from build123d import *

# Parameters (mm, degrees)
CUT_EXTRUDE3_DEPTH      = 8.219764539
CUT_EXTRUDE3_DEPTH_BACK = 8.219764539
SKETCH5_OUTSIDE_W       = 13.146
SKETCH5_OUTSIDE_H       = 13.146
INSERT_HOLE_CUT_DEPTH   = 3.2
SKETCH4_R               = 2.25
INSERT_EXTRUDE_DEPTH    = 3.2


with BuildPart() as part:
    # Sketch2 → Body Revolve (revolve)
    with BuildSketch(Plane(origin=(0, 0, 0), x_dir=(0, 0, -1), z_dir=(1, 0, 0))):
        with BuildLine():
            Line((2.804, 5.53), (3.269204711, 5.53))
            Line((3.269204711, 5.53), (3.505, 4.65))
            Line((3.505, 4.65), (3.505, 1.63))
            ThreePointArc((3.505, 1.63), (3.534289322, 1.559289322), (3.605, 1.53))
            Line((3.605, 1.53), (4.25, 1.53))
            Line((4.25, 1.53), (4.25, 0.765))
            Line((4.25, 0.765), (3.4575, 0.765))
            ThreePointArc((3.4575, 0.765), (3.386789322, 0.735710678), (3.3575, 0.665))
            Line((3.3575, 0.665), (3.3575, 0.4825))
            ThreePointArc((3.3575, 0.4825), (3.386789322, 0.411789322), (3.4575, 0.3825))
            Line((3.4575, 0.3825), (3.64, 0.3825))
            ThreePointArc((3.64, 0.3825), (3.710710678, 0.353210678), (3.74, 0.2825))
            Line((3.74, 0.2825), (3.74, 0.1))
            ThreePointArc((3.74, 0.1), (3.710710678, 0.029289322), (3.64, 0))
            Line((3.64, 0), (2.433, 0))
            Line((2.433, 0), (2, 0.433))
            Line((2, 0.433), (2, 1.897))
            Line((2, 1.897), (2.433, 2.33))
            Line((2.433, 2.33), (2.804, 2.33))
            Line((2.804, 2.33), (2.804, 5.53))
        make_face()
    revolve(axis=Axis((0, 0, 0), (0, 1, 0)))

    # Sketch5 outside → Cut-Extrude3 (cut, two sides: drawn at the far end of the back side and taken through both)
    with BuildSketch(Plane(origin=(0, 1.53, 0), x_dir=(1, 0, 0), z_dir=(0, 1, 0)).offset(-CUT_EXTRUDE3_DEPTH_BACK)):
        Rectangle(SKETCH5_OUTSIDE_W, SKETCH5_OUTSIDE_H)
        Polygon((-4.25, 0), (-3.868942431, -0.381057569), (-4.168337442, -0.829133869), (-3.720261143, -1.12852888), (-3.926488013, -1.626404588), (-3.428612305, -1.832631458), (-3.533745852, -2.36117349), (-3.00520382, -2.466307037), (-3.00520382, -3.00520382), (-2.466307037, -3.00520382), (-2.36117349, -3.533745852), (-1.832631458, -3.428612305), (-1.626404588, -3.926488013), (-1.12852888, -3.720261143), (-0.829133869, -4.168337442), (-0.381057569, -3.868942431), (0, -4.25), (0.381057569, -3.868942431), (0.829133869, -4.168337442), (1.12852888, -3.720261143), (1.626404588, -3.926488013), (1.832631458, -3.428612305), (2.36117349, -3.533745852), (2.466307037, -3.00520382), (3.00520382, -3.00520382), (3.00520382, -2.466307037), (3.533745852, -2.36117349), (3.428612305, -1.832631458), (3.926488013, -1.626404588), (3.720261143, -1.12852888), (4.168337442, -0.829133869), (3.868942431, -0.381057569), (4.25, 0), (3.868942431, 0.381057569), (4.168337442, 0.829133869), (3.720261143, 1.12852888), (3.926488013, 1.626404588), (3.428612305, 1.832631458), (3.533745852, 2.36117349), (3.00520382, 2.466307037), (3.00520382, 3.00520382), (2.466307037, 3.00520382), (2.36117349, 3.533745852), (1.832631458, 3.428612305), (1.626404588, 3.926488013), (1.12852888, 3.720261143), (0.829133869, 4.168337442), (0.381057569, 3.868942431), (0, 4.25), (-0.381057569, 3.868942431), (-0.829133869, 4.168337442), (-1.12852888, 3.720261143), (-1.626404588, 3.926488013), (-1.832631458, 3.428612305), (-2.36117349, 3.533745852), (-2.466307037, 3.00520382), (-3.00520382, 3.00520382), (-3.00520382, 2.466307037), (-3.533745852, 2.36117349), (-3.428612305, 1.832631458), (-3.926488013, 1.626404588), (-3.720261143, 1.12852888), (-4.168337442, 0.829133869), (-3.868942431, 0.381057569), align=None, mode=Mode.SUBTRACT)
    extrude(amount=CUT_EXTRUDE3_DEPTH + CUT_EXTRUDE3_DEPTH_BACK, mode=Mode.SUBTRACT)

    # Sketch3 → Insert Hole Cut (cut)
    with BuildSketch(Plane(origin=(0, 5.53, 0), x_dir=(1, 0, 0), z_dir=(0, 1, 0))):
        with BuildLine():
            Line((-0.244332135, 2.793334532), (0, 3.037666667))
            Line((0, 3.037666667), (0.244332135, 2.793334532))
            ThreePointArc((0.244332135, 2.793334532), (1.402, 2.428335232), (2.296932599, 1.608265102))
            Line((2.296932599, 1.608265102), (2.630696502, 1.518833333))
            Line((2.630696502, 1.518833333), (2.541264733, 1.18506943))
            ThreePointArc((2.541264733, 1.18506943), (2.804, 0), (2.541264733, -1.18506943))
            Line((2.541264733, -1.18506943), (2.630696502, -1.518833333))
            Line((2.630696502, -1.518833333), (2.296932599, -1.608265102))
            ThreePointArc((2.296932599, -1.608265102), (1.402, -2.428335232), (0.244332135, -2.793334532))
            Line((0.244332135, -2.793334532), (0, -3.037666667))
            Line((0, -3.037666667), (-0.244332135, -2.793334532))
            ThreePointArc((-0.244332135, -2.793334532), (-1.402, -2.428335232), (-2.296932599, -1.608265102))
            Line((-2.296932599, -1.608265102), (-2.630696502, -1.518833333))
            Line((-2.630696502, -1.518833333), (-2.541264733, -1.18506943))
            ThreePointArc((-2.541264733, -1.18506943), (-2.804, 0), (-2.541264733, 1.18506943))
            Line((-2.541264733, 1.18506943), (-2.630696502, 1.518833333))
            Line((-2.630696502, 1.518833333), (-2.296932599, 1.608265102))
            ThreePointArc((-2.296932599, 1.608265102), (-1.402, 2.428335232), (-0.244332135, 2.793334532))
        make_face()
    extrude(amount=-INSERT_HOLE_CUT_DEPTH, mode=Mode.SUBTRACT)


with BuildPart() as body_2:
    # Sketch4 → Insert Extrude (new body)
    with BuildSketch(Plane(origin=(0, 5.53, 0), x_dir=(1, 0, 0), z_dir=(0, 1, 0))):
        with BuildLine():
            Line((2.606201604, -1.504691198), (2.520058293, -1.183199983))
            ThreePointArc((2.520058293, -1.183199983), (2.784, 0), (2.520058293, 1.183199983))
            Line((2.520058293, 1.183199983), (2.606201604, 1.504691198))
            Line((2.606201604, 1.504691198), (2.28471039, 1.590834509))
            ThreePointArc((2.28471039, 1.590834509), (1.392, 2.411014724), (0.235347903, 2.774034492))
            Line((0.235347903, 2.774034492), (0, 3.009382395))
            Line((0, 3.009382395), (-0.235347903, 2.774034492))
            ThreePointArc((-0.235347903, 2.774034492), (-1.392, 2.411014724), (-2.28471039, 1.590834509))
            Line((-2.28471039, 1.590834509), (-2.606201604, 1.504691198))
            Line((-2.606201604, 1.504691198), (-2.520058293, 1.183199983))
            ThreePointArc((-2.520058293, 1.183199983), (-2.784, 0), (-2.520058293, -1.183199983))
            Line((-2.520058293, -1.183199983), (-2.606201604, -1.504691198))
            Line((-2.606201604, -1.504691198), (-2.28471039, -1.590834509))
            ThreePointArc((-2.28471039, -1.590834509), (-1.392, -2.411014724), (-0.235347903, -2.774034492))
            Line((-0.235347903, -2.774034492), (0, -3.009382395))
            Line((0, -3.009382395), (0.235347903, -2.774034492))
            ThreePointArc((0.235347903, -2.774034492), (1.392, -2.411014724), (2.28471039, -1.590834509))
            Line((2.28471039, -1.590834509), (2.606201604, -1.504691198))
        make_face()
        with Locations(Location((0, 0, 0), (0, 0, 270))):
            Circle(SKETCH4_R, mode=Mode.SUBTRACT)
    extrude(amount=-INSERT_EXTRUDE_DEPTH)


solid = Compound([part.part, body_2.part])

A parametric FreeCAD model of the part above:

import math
import FreeCAD as App
import Part
import Sketcher
Q = App.Units.Quantity


def add_polygon(sketch, points):
    """Adds a closed chain of lines whose ends are joined by coincident constraints."""
    first, n = sketch.GeometryCount, len(points)
    for a, b in zip(points, points[1:] + points[:1]):
        sketch.addGeometry(Part.LineSegment(App.Vector(*a, 0), App.Vector(*b, 0)), False)
    for i in range(n):
        sketch.addConstraint(Sketcher.Constraint("Coincident", first + i, 2, first + (i + 1) % n, 1))

doc = App.newDocument("Part")
body = doc.addObject("PartDesign::Body", "Body")

sketch1 = doc.addObject("Sketcher::SketchObject", "Sketch")
body.addObject(sketch1)
sketch1.AttachmentSupport = (doc.YZ_Plane, [""])
sketch1.MapMode = "FlatFace"
sketch1.addGeometry([
    Part.LineSegment(App.Vector(5.53, -3.269205, 0), App.Vector(5.53, -2.804, 0)),
    Part.LineSegment(App.Vector(5.53, -2.804, 0), App.Vector(2.33, -2.804, 0)),
    Part.LineSegment(App.Vector(2.33, -2.804, 0), App.Vector(2.33, -2.433, 0)),
    Part.LineSegment(App.Vector(2.33, -2.433, 0), App.Vector(1.897, -2, 0)),
    Part.LineSegment(App.Vector(1.897, -2, 0), App.Vector(0.433, -2, 0)),
    Part.LineSegment(App.Vector(0.433, -2, 0), App.Vector(0, -2.433, 0)),
    Part.LineSegment(App.Vector(0, -2.433, 0), App.Vector(0, -3.64, 0)),
    Part.ArcOfCircle(Part.Circle(App.Vector(0.1, -3.64, 0), App.Vector(0, 0, 1), 0.1), math.radians(180), math.radians(270)),
    Part.LineSegment(App.Vector(0.1, -3.74, 0), App.Vector(0.2825, -3.74, 0)),
    Part.ArcOfCircle(Part.Circle(App.Vector(0.2825, -3.64, 0), App.Vector(0, 0, 1), 0.1), math.radians(-90), math.radians(0)),
    Part.LineSegment(App.Vector(0.3825, -3.64, 0), App.Vector(0.3825, -3.4575, 0)),
    Part.ArcOfCircle(Part.Circle(App.Vector(0.4825, -3.4575, 0), App.Vector(0, 0, 1), 0.1), math.radians(90), math.radians(180)),
    Part.LineSegment(App.Vector(0.4825, -3.3575, 0), App.Vector(0.665, -3.3575, 0)),
    Part.ArcOfCircle(Part.Circle(App.Vector(0.665, -3.4575, 0), App.Vector(0, 0, 1), 0.1), math.radians(0), math.radians(90)),
    Part.LineSegment(App.Vector(0.765, -3.4575, 0), App.Vector(0.765, -4.25, 0)),
    Part.LineSegment(App.Vector(0.765, -4.25, 0), App.Vector(1.53, -4.25, 0)),
    Part.LineSegment(App.Vector(1.53, -4.25, 0), App.Vector(1.53, -3.605, 0)),
    Part.ArcOfCircle(Part.Circle(App.Vector(1.63, -3.605, 0), App.Vector(0, 0, 1), 0.1), math.radians(90), math.radians(180)),
    Part.LineSegment(App.Vector(1.63, -3.505, 0), App.Vector(4.65, -3.505, 0)),
    Part.LineSegment(App.Vector(4.65, -3.505, 0), App.Vector(5.53, -3.269205, 0)),
], False)
sketch1.addConstraint([
    Sketcher.Constraint("Coincident", 0, 2, 1, 1),
    Sketcher.Constraint("Coincident", 1, 2, 2, 1),
    Sketcher.Constraint("Coincident", 2, 2, 3, 1),
    Sketcher.Constraint("Coincident", 3, 2, 4, 1),
    Sketcher.Constraint("Coincident", 4, 2, 5, 1),
    Sketcher.Constraint("Coincident", 5, 2, 6, 1),
    Sketcher.Constraint("Tangent", 6, 2, 7, 1),
    Sketcher.Constraint("Tangent", 7, 2, 8, 1),
    Sketcher.Constraint("Tangent", 8, 2, 9, 1),
    Sketcher.Constraint("Tangent", 9, 2, 10, 1),
    Sketcher.Constraint("Tangent", 10, 2, 11, 2),
    Sketcher.Constraint("Tangent", 11, 1, 12, 1),
    Sketcher.Constraint("Tangent", 12, 2, 13, 2),
    Sketcher.Constraint("Tangent", 13, 1, 14, 1),
    Sketcher.Constraint("Coincident", 14, 2, 15, 1),
    Sketcher.Constraint("Coincident", 15, 2, 16, 1),
    Sketcher.Constraint("Tangent", 16, 2, 17, 2),
    Sketcher.Constraint("Tangent", 17, 1, 18, 1),
    Sketcher.Constraint("Coincident", 18, 2, 19, 1),
    Sketcher.Constraint("Coincident", 19, 2, 0, 1),
    Sketcher.Constraint("Vertical", 0),
    Sketcher.Constraint("Horizontal", 1),
    Sketcher.Constraint("Vertical", 2),
    Sketcher.Constraint("Horizontal", 4),
    Sketcher.Constraint("Vertical", 6),
    Sketcher.Constraint("Horizontal", 8),
    Sketcher.Constraint("Vertical", 10),
    Sketcher.Constraint("Horizontal", 12),
    Sketcher.Constraint("Vertical", 14),
    Sketcher.Constraint("Horizontal", 15),
    Sketcher.Constraint("Vertical", 16),
    Sketcher.Constraint("Horizontal", 18),
    Sketcher.Constraint("Equal", 7, 9),
    Sketcher.Constraint("Equal", 9, 11),
    Sketcher.Constraint("Equal", 11, 13),
    Sketcher.Constraint("Equal", 13, 17),
    Sketcher.Constraint("PointOnObject", 5, 2, -2),
    Sketcher.Constraint("Perpendicular", 3, 5),
    Sketcher.Constraint("Horizontal", 2, 2, 5, 2),
    Sketcher.Constraint("Equal", 8, 12),
    Sketcher.Constraint("Equal", 12, 10),
    Sketcher.Constraint("Equal", 3, 5),
    Sketcher.Constraint("Radius", 7, 0.1),
    Sketcher.Constraint("Angle", 19, Q("15 deg")),
    Sketcher.Constraint("DistanceX", 1, 2, 1, 1, 3.2),
    Sketcher.Constraint("DistanceY", 3, 2, -1, 1, 2.0),
    Sketcher.Constraint("DistanceX", 18, 1, 18, 2, 3.02),
    Sketcher.Constraint("DistanceX", 17, 3, 0, 2, 3.9),
    Sketcher.Constraint("DistanceX", 4, 2, 4, 1, 1.464),
    Sketcher.Constraint("DistanceX", 15, 1, 15, 2, 0.765),
    Sketcher.Constraint("DistanceY", 2, 1, 2, 2, 0.371),
    Sketcher.Constraint("DistanceY", 6, 2, 6, 1, 1.207),
    Sketcher.Constraint("DistanceY", 16, 1, 16, 2, 0.645),
    Sketcher.Constraint("DistanceY", 7, 3, -1, 1, 3.64),
    Sketcher.Constraint("DistanceY", 14, 2, -1, 1, 4.25),
])
revolution = doc.addObject("PartDesign::Revolution", "Revolution")
body.addObject(revolution)
revolution.Profile = sketch1
revolution.ReferenceAxis = (sketch1, ["H_Axis"])
revolution.Angle = 360

sketch2 = doc.addObject("Sketcher::SketchObject", "Sketch001")
body.addObject(sketch2)
sketch2.AttachmentSupport = (doc.XZ_Plane, [""])
sketch2.MapMode = "FlatFace"
sketch2.AttachmentOffset = App.Placement(App.Vector(0, 0, -1.53), App.Rotation())
add_polygon(sketch2, [(-6.573, -6.573), (-6.573, 6.573), (6.573, 6.573), (6.573, -6.573)])
add_polygon(sketch2, [(-3.868942, 0.381058), (-4.25, 0), (-3.868942, -0.381058), (-4.168337, -0.829134), (-3.720261, -1.128529), (-3.926488, -1.626405), (-3.428612, -1.832631), (-3.533746, -2.361173), (-3.005204, -2.466307), (-3.005204, -3.005204), (-2.466307, -3.005204), (-2.361173, -3.533746), (-1.832631, -3.428612), (-1.626405, -3.926488), (-1.128529, -3.720261), (-0.829134, -4.168337), (-0.381058, -3.868942), (0, -4.25), (0.381058, -3.868942), (0.829134, -4.168337), (1.128529, -3.720261), (1.626405, -3.926488), (1.832631, -3.428612), (2.361173, -3.533746), (2.466307, -3.005204), (3.005204, -3.005204), (3.005204, -2.466307), (3.533746, -2.361173), (3.428612, -1.832631), (3.926488, -1.626405), (3.720261, -1.128529), (4.168337, -0.829134), (3.868942, -0.381058), (4.25, 0), (3.868942, 0.381058), (4.168337, 0.829134), (3.720261, 1.128529), (3.926488, 1.626405), (3.428612, 1.832631), (3.533746, 2.361173), (3.005204, 2.466307), (3.005204, 3.005204), (2.466307, 3.005204), (2.361173, 3.533746), (1.832631, 3.428612), (1.626405, 3.926488), (1.128529, 3.720261), (0.829134, 4.168337), (0.381058, 3.868942), (0, 4.25), (-0.381058, 3.868942), (-0.829134, 4.168337), (-1.128529, 3.720261), (-1.626405, 3.926488), (-1.832631, 3.428612), (-2.361173, 3.533746), (-2.466307, 3.005204), (-3.005204, 3.005204), (-3.005204, 2.466307), (-3.533746, 2.361173), (-3.428612, 1.832631), (-3.926488, 1.626405), (-3.720261, 1.128529), (-4.168337, 0.829134)])
sketch2.addConstraint([
    Sketcher.Constraint("Vertical", 0),
    Sketcher.Constraint("Horizontal", 1),
    Sketcher.Constraint("Vertical", 2),
    Sketcher.Constraint("Horizontal", 3),
    Sketcher.Constraint("Vertical", 12),
    Sketcher.Constraint("Horizontal", 13),
    Sketcher.Constraint("Horizontal", 28),
    Sketcher.Constraint("Vertical", 29),
    Sketcher.Constraint("Vertical", 44),
    Sketcher.Constraint("Horizontal", 45),
    Sketcher.Constraint("Horizontal", 60),
    Sketcher.Constraint("Vertical", 61),
    Sketcher.Constraint("Symmetric", 0, 2, 2, 2, -1, 1),
    Sketcher.Constraint("Symmetric", 4, 2, 36, 2, -1, 1),
    Sketcher.Constraint("Symmetric", 5, 2, 37, 2, -1, 1),
    Sketcher.Constraint("Symmetric", 6, 2, 38, 2, -1, 1),
    Sketcher.Constraint("Symmetric", 7, 2, 39, 2, -1, 1),
    Sketcher.Constraint("Symmetric", 8, 2, 40, 2, -1, 1),
    Sketcher.Constraint("Symmetric", 9, 2, 41, 2, -1, 1),
    Sketcher.Constraint("Symmetric", 10, 2, 42, 2, -1, 1),
    Sketcher.Constraint("Symmetric", 11, 2, 43, 2, -1, 1),
    Sketcher.Constraint("Symmetric", 13, 2, 45, 2, -1, 1),
    Sketcher.Constraint("Symmetric", 14, 2, 46, 2, -1, 1),
    Sketcher.Constraint("Symmetric", 15, 2, 47, 2, -1, 1),
    Sketcher.Constraint("Symmetric", 16, 2, 48, 2, -1, 1),
    Sketcher.Constraint("Symmetric", 17, 2, 49, 2, -1, 1),
    Sketcher.Constraint("Symmetric", 18, 2, 50, 2, -1, 1),
    Sketcher.Constraint("Symmetric", 19, 2, 51, 2, -1, 1),
    Sketcher.Constraint("Symmetric", 20, 2, 52, 2, -1, 1),
    Sketcher.Constraint("Symmetric", 21, 2, 53, 2, -1, 1),
    Sketcher.Constraint("Symmetric", 22, 2, 54, 2, -1, 1),
    Sketcher.Constraint("Symmetric", 23, 2, 55, 2, -1, 1),
    Sketcher.Constraint("Symmetric", 24, 2, 56, 2, -1, 1),
    Sketcher.Constraint("Symmetric", 25, 2, 57, 2, -1, 1),
    Sketcher.Constraint("Symmetric", 26, 2, 58, 2, -1, 1),
    Sketcher.Constraint("Symmetric", 27, 2, 59, 2, -1, 1),
    Sketcher.Constraint("Symmetric", 29, 2, 61, 2, -1, 1),
    Sketcher.Constraint("Symmetric", 30, 2, 62, 2, -1, 1),
    Sketcher.Constraint("Symmetric", 31, 2, 63, 2, -1, 1),
    Sketcher.Constraint("Symmetric", 32, 2, 64, 2, -1, 1),
    Sketcher.Constraint("Symmetric", 33, 2, 65, 2, -1, 1),
    Sketcher.Constraint("Symmetric", 34, 2, 66, 2, -1, 1),
    Sketcher.Constraint("Symmetric", 35, 2, 67, 2, -1, 1),
    Sketcher.Constraint("Symmetric", 19, 2, 21, 2, -2),
    Sketcher.Constraint("Symmetric", 18, 2, 22, 2, -2),
    Sketcher.Constraint("Symmetric", 17, 2, 23, 2, -2),
    Sketcher.Constraint("Symmetric", 16, 2, 24, 2, -2),
    Sketcher.Constraint("Symmetric", 15, 2, 25, 2, -2),
    Sketcher.Constraint("Symmetric", 14, 2, 26, 2, -2),
    Sketcher.Constraint("Symmetric", 13, 2, 27, 2, -2),
    Sketcher.Constraint("Symmetric", 11, 2, 29, 2, -2),
    Sketcher.Constraint("Symmetric", 10, 2, 30, 2, -2),
    Sketcher.Constraint("Symmetric", 9, 2, 31, 2, -2),
    Sketcher.Constraint("Symmetric", 8, 2, 32, 2, -2),
    Sketcher.Constraint("Symmetric", 7, 2, 33, 2, -2),
    Sketcher.Constraint("Symmetric", 6, 2, 34, 2, -2),
    Sketcher.Constraint("Symmetric", 5, 2, 35, 2, -2),
    Sketcher.Constraint("PointOnObject", 4, 2, -1),
    Sketcher.Constraint("PointOnObject", 20, 2, -2),
    Sketcher.Constraint("Perpendicular", 4, 5),
    Sketcher.Constraint("Perpendicular", 6, 7),
    Sketcher.Constraint("Perpendicular", 8, 9),
    Sketcher.Constraint("Perpendicular", 10, 11),
    Sketcher.Constraint("Perpendicular", 14, 15),
    Sketcher.Constraint("Perpendicular", 16, 17),
    Sketcher.Constraint("Perpendicular", 18, 19),
    Sketcher.Constraint("Parallel", 5, 20),
    Sketcher.Constraint("Parallel", 7, 22),
    Sketcher.Constraint("Parallel", 9, 24),
    Sketcher.Constraint("Parallel", 11, 26),
    Sketcher.Constraint("Equal", 3, 0),
    Sketcher.Constraint("Equal", 60, 12),
    Sketcher.Constraint("Equal", 5, 6),
    Sketcher.Constraint("Equal", 6, 7),
    Sketcher.Constraint("Equal", 7, 8),
    Sketcher.Constraint("Equal", 8, 9),
    Sketcher.Constraint("Equal", 9, 10),
    Sketcher.Constraint("Equal", 10, 11),
    Sketcher.Constraint("Equal", 11, 14),
    Sketcher.Constraint("Equal", 14, 15),
    Sketcher.Constraint("Equal", 15, 16),
    Sketcher.Constraint("Equal", 16, 17),
    Sketcher.Constraint("Equal", 17, 18),
    Sketcher.Constraint("Equal", 18, 19),
    Sketcher.Constraint("Equal", 19, 20),
    Sketcher.Constraint("Angle", 8, Q("-112.5 deg")),
    Sketcher.Constraint("Angle", 6, Q("-123.75 deg")),
    Sketcher.Constraint("Angle", 10, Q("-101.25 deg")),
    Sketcher.Constraint("DistanceX", 1, 1, 1, 2, 13.146),
    Sketcher.Constraint("DistanceX", 4, 2, -1, 1, 4.25),
    Sketcher.Constraint("DistanceX", 13, 1, 13, 2, 0.538897),
])
pocket1 = doc.addObject("PartDesign::Pocket", "Pocket")
body.addObject(pocket1)
pocket1.Profile = sketch2
pocket1.Type = "ThroughAll"
pocket1.Midplane = True

sketch3 = doc.addObject("Sketcher::SketchObject", "Sketch002")
body.addObject(sketch3)
sketch3.AttachmentSupport = (doc.XZ_Plane, [""])
sketch3.MapMode = "FlatFace"
sketch3.AttachmentOffset = App.Placement(App.Vector(0, 0, -5.53), App.Rotation())
sketch3.addGeometry([
    Part.LineSegment(App.Vector(0, -3.037667, 0), App.Vector(-0.244332, -2.793335, 0)),
    Part.ArcOfCircle(Part.Circle(App.Vector(0, 0, 0), App.Vector(0, 0, 1), 2.804), math.radians(-145.001078), math.radians(-94.998922)),
    Part.LineSegment(App.Vector(-2.296933, -1.608265, 0), App.Vector(-2.630697, -1.518833, 0)),
    Part.LineSegment(App.Vector(-2.630697, -1.518833, 0), App.Vector(-2.541265, -1.185069, 0)),
    Part.ArcOfCircle(Part.Circle(App.Vector(0, 0, 0), App.Vector(0, 0, 1), 2.804), math.radians(154.998922), math.radians(205.001078)),
    Part.LineSegment(App.Vector(-2.541265, 1.185069, 0), App.Vector(-2.630697, 1.518833, 0)),
    Part.LineSegment(App.Vector(-2.630697, 1.518833, 0), App.Vector(-2.296933, 1.608265, 0)),
    Part.ArcOfCircle(Part.Circle(App.Vector(0, 0, 0), App.Vector(0, 0, 1), 2.804), math.radians(94.998922), math.radians(145.001078)),
    Part.LineSegment(App.Vector(-0.244332, 2.793335, 0), App.Vector(0, 3.037667, 0)),
    Part.LineSegment(App.Vector(0, 3.037667, 0), App.Vector(0.244332, 2.793335, 0)),
    Part.ArcOfCircle(Part.Circle(App.Vector(0, 0, 0), App.Vector(0, 0, 1), 2.804), math.radians(34.998922), math.radians(85.001078)),
    Part.LineSegment(App.Vector(2.296933, 1.608265, 0), App.Vector(2.630697, 1.518833, 0)),
    Part.LineSegment(App.Vector(2.630697, 1.518833, 0), App.Vector(2.541265, 1.185069, 0)),
    Part.ArcOfCircle(Part.Circle(App.Vector(0, 0, 0), App.Vector(0, 0, 1), 2.804), math.radians(-25.001078), math.radians(25.001078)),
    Part.LineSegment(App.Vector(2.541265, -1.185069, 0), App.Vector(2.630697, -1.518833, 0)),
    Part.LineSegment(App.Vector(2.630697, -1.518833, 0), App.Vector(2.296933, -1.608265, 0)),
    Part.ArcOfCircle(Part.Circle(App.Vector(0, 0, 0), App.Vector(0, 0, 1), 2.804), math.radians(-85.001078), math.radians(-34.998922)),
    Part.LineSegment(App.Vector(0.244332, -2.793335, 0), App.Vector(0, -3.037667, 0)),
], False)
sketch3.addConstraint([
    Sketcher.Constraint("Coincident", 0, 2, 1, 2),
    Sketcher.Constraint("Coincident", 1, 1, 2, 1),
    Sketcher.Constraint("Coincident", 2, 2, 3, 1),
    Sketcher.Constraint("Coincident", 3, 2, 4, 2),
    Sketcher.Constraint("Coincident", 4, 1, 5, 1),
    Sketcher.Constraint("Coincident", 5, 2, 6, 1),
    Sketcher.Constraint("Coincident", 6, 2, 7, 2),
    Sketcher.Constraint("Coincident", 7, 1, 8, 1),
    Sketcher.Constraint("Coincident", 8, 2, 9, 1),
    Sketcher.Constraint("Coincident", 9, 2, 10, 2),
    Sketcher.Constraint("Coincident", 10, 1, 11, 1),
    Sketcher.Constraint("Coincident", 11, 2, 12, 1),
    Sketcher.Constraint("Coincident", 12, 2, 13, 2),
    Sketcher.Constraint("Coincident", 13, 1, 14, 1),
    Sketcher.Constraint("Coincident", 14, 2, 15, 1),
    Sketcher.Constraint("Coincident", 15, 2, 16, 2),
    Sketcher.Constraint("Coincident", 16, 1, 17, 1),
    Sketcher.Constraint("Coincident", 17, 2, 0, 1),
    Sketcher.Constraint("Coincident", 1, 3, -1, 1),
    Sketcher.Constraint("Coincident", 4, 3, -1, 1),
    Sketcher.Constraint("Coincident", 7, 3, -1, 1),
    Sketcher.Constraint("Coincident", 10, 3, -1, 1),
    Sketcher.Constraint("Coincident", 13, 3, -1, 1),
    Sketcher.Constraint("Coincident", 16, 3, -1, 1),
    Sketcher.Constraint("Equal", 1, 4),
    Sketcher.Constraint("Equal", 4, 7),
    Sketcher.Constraint("Equal", 7, 10),
    Sketcher.Constraint("Equal", 10, 13),
    Sketcher.Constraint("Equal", 13, 16),
    Sketcher.Constraint("Symmetric", 2, 2, 11, 2, -1, 1),
    Sketcher.Constraint("Symmetric", 5, 2, 14, 2, -1, 1),
    Sketcher.Constraint("Symmetric", 8, 2, 17, 2, -1, 1),
    Sketcher.Constraint("Symmetric", 5, 2, 11, 2, -2),
    Sketcher.Constraint("PointOnObject", 8, 2, -2),
    Sketcher.Constraint("Perpendicular", 2, 3),
    Sketcher.Constraint("Perpendicular", 5, 6),
    Sketcher.Constraint("Perpendicular", 0, 8),
    Sketcher.Constraint("Perpendicular", 8, 9),
    Sketcher.Constraint("Perpendicular", 3, 11),
    Sketcher.Constraint("Perpendicular", 11, 12),
    Sketcher.Constraint("Perpendicular", 6, 14),
    Sketcher.Constraint("Perpendicular", 14, 15),
    Sketcher.Constraint("Perpendicular", 9, 17),
    Sketcher.Constraint("Horizontal", 7, 1, 9, 2),
    Sketcher.Constraint("Horizontal", 6, 2, 10, 1),
    Sketcher.Constraint("Equal", 0, 2),
    Sketcher.Constraint("Equal", 2, 3),
    Sketcher.Constraint("Angle", 2, Q("165 deg")),
    Sketcher.Constraint("Radius", 1, 2.804),
    Sketcher.Constraint("DistanceX", 1, 1, 0, 2, 2.0526),
])
pocket2 = doc.addObject("PartDesign::Pocket", "Pocket001")
body.addObject(pocket2)
pocket2.Profile = sketch3
pocket2.Length = 3.2
pocket2.Reversed = True
body2 = doc.addObject("PartDesign::Body", "Body001")

sketch4 = doc.addObject("Sketcher::SketchObject", "Sketch003")
body2.addObject(sketch4)
sketch4.AttachmentSupport = (doc.getObject("XZ_Plane001"), [""])
sketch4.MapMode = "FlatFace"
sketch4.AttachmentOffset = App.Placement(App.Vector(0, 0, -5.53), App.Rotation())
sketch4.addGeometry([
    Part.LineSegment(App.Vector(2.606202, 1.504691, 0), App.Vector(2.520058, 1.1832, 0)),
    Part.ArcOfCircle(Part.Circle(App.Vector(0, 0, 0), App.Vector(0, 0, 1), 2.784), math.radians(-25.150663), math.radians(25.150663)),
    Part.LineSegment(App.Vector(2.520058, -1.1832, 0), App.Vector(2.606202, -1.504691, 0)),
    Part.LineSegment(App.Vector(2.606202, -1.504691, 0), App.Vector(2.28471, -1.590835, 0)),
    Part.ArcOfCircle(Part.Circle(App.Vector(0, 0, 0), App.Vector(0, 0, 1), 2.784), math.radians(-85.150663), math.radians(-34.849337)),
    Part.LineSegment(App.Vector(0.235348, -2.774034, 0), App.Vector(0, -3.009382, 0)),
    Part.LineSegment(App.Vector(0, -3.009382, 0), App.Vector(-0.235348, -2.774034, 0)),
    Part.ArcOfCircle(Part.Circle(App.Vector(0, 0, 0), App.Vector(0, 0, 1), 2.784), math.radians(-145.150663), math.radians(-94.849337)),
    Part.LineSegment(App.Vector(-2.28471, -1.590835, 0), App.Vector(-2.606202, -1.504691, 0)),
    Part.LineSegment(App.Vector(-2.606202, -1.504691, 0), App.Vector(-2.520058, -1.1832, 0)),
    Part.ArcOfCircle(Part.Circle(App.Vector(0, 0, 0), App.Vector(0, 0, 1), 2.784), math.radians(154.849337), math.radians(205.150663)),
    Part.LineSegment(App.Vector(-2.520058, 1.1832, 0), App.Vector(-2.606202, 1.504691, 0)),
    Part.LineSegment(App.Vector(-2.606202, 1.504691, 0), App.Vector(-2.28471, 1.590835, 0)),
    Part.ArcOfCircle(Part.Circle(App.Vector(0, 0, 0), App.Vector(0, 0, 1), 2.784), math.radians(94.849337), math.radians(145.150663)),
    Part.LineSegment(App.Vector(-0.235348, 2.774034, 0), App.Vector(0, 3.009382, 0)),
    Part.LineSegment(App.Vector(0, 3.009382, 0), App.Vector(0.235348, 2.774034, 0)),
    Part.ArcOfCircle(Part.Circle(App.Vector(0, 0, 0), App.Vector(0, 0, 1), 2.784), math.radians(34.849337), math.radians(85.150663)),
    Part.LineSegment(App.Vector(2.28471, 1.590835, 0), App.Vector(2.606202, 1.504691, 0)),
    Part.Circle(App.Vector(0, 0, 0), App.Vector(0, 0, 1), 2.25),
], False)
sketch4.addConstraint([
    Sketcher.Constraint("Coincident", 0, 2, 1, 2),
    Sketcher.Constraint("Coincident", 1, 1, 2, 1),
    Sketcher.Constraint("Coincident", 2, 2, 3, 1),
    Sketcher.Constraint("Coincident", 3, 2, 4, 2),
    Sketcher.Constraint("Coincident", 4, 1, 5, 1),
    Sketcher.Constraint("Coincident", 5, 2, 6, 1),
    Sketcher.Constraint("Coincident", 6, 2, 7, 2),
    Sketcher.Constraint("Coincident", 7, 1, 8, 1),
    Sketcher.Constraint("Coincident", 8, 2, 9, 1),
    Sketcher.Constraint("Coincident", 9, 2, 10, 2),
    Sketcher.Constraint("Coincident", 10, 1, 11, 1),
    Sketcher.Constraint("Coincident", 11, 2, 12, 1),
    Sketcher.Constraint("Coincident", 12, 2, 13, 2),
    Sketcher.Constraint("Coincident", 13, 1, 14, 1),
    Sketcher.Constraint("Coincident", 14, 2, 15, 1),
    Sketcher.Constraint("Coincident", 15, 2, 16, 2),
    Sketcher.Constraint("Coincident", 16, 1, 17, 1),
    Sketcher.Constraint("Coincident", 17, 2, 0, 1),
    Sketcher.Constraint("Coincident", 1, 3, -1, 1),
    Sketcher.Constraint("Coincident", 4, 3, -1, 1),
    Sketcher.Constraint("Coincident", 7, 3, -1, 1),
    Sketcher.Constraint("Coincident", 10, 3, -1, 1),
    Sketcher.Constraint("Coincident", 13, 3, -1, 1),
    Sketcher.Constraint("Coincident", 16, 3, -1, 1),
    Sketcher.Constraint("Coincident", 18, 3, -1, 1),
    Sketcher.Constraint("Equal", 1, 4),
    Sketcher.Constraint("Equal", 4, 7),
    Sketcher.Constraint("Equal", 7, 10),
    Sketcher.Constraint("Equal", 10, 13),
    Sketcher.Constraint("Equal", 13, 16),
    Sketcher.Constraint("Symmetric", 2, 2, 11, 2, -1, 1),
    Sketcher.Constraint("Symmetric", 5, 2, 14, 2, -1, 1),
    Sketcher.Constraint("Symmetric", 8, 2, 17, 2, -1, 1),
    Sketcher.Constraint("Symmetric", 2, 2, 8, 2, -2),
    Sketcher.Constraint("PointOnObject", 5, 2, -2),
    Sketcher.Constraint("Perpendicular", 2, 3),
    Sketcher.Constraint("Perpendicular", 5, 6),
    Sketcher.Constraint("Perpendicular", 0, 8),
    Sketcher.Constraint("Perpendicular", 8, 9),
    Sketcher.Constraint("Perpendicular", 3, 11),
    Sketcher.Constraint("Perpendicular", 11, 12),
    Sketcher.Constraint("Perpendicular", 6, 14),
    Sketcher.Constraint("Perpendicular", 14, 15),
    Sketcher.Constraint("Perpendicular", 9, 17),
    Sketcher.Constraint("Horizontal", 4, 1, 6, 2),
    Sketcher.Constraint("Horizontal", 3, 2, 7, 1),
    Sketcher.Constraint("Equal", 2, 3),
    Sketcher.Constraint("Equal", 3, 5),
    Sketcher.Constraint("Diameter", 18, 4.5),
    Sketcher.Constraint("Angle", 0, Q("-105 deg")),
    Sketcher.Constraint("Radius", 1, 2.784),
    Sketcher.Constraint("DistanceY", -1, 1, 0, 2, 1.1832),
])
pad1 = doc.addObject("PartDesign::Pad", "Pad")
body2.addObject(pad1)
pad1.Profile = sketch4
pad1.Length = 3.2

doc.recompute()
